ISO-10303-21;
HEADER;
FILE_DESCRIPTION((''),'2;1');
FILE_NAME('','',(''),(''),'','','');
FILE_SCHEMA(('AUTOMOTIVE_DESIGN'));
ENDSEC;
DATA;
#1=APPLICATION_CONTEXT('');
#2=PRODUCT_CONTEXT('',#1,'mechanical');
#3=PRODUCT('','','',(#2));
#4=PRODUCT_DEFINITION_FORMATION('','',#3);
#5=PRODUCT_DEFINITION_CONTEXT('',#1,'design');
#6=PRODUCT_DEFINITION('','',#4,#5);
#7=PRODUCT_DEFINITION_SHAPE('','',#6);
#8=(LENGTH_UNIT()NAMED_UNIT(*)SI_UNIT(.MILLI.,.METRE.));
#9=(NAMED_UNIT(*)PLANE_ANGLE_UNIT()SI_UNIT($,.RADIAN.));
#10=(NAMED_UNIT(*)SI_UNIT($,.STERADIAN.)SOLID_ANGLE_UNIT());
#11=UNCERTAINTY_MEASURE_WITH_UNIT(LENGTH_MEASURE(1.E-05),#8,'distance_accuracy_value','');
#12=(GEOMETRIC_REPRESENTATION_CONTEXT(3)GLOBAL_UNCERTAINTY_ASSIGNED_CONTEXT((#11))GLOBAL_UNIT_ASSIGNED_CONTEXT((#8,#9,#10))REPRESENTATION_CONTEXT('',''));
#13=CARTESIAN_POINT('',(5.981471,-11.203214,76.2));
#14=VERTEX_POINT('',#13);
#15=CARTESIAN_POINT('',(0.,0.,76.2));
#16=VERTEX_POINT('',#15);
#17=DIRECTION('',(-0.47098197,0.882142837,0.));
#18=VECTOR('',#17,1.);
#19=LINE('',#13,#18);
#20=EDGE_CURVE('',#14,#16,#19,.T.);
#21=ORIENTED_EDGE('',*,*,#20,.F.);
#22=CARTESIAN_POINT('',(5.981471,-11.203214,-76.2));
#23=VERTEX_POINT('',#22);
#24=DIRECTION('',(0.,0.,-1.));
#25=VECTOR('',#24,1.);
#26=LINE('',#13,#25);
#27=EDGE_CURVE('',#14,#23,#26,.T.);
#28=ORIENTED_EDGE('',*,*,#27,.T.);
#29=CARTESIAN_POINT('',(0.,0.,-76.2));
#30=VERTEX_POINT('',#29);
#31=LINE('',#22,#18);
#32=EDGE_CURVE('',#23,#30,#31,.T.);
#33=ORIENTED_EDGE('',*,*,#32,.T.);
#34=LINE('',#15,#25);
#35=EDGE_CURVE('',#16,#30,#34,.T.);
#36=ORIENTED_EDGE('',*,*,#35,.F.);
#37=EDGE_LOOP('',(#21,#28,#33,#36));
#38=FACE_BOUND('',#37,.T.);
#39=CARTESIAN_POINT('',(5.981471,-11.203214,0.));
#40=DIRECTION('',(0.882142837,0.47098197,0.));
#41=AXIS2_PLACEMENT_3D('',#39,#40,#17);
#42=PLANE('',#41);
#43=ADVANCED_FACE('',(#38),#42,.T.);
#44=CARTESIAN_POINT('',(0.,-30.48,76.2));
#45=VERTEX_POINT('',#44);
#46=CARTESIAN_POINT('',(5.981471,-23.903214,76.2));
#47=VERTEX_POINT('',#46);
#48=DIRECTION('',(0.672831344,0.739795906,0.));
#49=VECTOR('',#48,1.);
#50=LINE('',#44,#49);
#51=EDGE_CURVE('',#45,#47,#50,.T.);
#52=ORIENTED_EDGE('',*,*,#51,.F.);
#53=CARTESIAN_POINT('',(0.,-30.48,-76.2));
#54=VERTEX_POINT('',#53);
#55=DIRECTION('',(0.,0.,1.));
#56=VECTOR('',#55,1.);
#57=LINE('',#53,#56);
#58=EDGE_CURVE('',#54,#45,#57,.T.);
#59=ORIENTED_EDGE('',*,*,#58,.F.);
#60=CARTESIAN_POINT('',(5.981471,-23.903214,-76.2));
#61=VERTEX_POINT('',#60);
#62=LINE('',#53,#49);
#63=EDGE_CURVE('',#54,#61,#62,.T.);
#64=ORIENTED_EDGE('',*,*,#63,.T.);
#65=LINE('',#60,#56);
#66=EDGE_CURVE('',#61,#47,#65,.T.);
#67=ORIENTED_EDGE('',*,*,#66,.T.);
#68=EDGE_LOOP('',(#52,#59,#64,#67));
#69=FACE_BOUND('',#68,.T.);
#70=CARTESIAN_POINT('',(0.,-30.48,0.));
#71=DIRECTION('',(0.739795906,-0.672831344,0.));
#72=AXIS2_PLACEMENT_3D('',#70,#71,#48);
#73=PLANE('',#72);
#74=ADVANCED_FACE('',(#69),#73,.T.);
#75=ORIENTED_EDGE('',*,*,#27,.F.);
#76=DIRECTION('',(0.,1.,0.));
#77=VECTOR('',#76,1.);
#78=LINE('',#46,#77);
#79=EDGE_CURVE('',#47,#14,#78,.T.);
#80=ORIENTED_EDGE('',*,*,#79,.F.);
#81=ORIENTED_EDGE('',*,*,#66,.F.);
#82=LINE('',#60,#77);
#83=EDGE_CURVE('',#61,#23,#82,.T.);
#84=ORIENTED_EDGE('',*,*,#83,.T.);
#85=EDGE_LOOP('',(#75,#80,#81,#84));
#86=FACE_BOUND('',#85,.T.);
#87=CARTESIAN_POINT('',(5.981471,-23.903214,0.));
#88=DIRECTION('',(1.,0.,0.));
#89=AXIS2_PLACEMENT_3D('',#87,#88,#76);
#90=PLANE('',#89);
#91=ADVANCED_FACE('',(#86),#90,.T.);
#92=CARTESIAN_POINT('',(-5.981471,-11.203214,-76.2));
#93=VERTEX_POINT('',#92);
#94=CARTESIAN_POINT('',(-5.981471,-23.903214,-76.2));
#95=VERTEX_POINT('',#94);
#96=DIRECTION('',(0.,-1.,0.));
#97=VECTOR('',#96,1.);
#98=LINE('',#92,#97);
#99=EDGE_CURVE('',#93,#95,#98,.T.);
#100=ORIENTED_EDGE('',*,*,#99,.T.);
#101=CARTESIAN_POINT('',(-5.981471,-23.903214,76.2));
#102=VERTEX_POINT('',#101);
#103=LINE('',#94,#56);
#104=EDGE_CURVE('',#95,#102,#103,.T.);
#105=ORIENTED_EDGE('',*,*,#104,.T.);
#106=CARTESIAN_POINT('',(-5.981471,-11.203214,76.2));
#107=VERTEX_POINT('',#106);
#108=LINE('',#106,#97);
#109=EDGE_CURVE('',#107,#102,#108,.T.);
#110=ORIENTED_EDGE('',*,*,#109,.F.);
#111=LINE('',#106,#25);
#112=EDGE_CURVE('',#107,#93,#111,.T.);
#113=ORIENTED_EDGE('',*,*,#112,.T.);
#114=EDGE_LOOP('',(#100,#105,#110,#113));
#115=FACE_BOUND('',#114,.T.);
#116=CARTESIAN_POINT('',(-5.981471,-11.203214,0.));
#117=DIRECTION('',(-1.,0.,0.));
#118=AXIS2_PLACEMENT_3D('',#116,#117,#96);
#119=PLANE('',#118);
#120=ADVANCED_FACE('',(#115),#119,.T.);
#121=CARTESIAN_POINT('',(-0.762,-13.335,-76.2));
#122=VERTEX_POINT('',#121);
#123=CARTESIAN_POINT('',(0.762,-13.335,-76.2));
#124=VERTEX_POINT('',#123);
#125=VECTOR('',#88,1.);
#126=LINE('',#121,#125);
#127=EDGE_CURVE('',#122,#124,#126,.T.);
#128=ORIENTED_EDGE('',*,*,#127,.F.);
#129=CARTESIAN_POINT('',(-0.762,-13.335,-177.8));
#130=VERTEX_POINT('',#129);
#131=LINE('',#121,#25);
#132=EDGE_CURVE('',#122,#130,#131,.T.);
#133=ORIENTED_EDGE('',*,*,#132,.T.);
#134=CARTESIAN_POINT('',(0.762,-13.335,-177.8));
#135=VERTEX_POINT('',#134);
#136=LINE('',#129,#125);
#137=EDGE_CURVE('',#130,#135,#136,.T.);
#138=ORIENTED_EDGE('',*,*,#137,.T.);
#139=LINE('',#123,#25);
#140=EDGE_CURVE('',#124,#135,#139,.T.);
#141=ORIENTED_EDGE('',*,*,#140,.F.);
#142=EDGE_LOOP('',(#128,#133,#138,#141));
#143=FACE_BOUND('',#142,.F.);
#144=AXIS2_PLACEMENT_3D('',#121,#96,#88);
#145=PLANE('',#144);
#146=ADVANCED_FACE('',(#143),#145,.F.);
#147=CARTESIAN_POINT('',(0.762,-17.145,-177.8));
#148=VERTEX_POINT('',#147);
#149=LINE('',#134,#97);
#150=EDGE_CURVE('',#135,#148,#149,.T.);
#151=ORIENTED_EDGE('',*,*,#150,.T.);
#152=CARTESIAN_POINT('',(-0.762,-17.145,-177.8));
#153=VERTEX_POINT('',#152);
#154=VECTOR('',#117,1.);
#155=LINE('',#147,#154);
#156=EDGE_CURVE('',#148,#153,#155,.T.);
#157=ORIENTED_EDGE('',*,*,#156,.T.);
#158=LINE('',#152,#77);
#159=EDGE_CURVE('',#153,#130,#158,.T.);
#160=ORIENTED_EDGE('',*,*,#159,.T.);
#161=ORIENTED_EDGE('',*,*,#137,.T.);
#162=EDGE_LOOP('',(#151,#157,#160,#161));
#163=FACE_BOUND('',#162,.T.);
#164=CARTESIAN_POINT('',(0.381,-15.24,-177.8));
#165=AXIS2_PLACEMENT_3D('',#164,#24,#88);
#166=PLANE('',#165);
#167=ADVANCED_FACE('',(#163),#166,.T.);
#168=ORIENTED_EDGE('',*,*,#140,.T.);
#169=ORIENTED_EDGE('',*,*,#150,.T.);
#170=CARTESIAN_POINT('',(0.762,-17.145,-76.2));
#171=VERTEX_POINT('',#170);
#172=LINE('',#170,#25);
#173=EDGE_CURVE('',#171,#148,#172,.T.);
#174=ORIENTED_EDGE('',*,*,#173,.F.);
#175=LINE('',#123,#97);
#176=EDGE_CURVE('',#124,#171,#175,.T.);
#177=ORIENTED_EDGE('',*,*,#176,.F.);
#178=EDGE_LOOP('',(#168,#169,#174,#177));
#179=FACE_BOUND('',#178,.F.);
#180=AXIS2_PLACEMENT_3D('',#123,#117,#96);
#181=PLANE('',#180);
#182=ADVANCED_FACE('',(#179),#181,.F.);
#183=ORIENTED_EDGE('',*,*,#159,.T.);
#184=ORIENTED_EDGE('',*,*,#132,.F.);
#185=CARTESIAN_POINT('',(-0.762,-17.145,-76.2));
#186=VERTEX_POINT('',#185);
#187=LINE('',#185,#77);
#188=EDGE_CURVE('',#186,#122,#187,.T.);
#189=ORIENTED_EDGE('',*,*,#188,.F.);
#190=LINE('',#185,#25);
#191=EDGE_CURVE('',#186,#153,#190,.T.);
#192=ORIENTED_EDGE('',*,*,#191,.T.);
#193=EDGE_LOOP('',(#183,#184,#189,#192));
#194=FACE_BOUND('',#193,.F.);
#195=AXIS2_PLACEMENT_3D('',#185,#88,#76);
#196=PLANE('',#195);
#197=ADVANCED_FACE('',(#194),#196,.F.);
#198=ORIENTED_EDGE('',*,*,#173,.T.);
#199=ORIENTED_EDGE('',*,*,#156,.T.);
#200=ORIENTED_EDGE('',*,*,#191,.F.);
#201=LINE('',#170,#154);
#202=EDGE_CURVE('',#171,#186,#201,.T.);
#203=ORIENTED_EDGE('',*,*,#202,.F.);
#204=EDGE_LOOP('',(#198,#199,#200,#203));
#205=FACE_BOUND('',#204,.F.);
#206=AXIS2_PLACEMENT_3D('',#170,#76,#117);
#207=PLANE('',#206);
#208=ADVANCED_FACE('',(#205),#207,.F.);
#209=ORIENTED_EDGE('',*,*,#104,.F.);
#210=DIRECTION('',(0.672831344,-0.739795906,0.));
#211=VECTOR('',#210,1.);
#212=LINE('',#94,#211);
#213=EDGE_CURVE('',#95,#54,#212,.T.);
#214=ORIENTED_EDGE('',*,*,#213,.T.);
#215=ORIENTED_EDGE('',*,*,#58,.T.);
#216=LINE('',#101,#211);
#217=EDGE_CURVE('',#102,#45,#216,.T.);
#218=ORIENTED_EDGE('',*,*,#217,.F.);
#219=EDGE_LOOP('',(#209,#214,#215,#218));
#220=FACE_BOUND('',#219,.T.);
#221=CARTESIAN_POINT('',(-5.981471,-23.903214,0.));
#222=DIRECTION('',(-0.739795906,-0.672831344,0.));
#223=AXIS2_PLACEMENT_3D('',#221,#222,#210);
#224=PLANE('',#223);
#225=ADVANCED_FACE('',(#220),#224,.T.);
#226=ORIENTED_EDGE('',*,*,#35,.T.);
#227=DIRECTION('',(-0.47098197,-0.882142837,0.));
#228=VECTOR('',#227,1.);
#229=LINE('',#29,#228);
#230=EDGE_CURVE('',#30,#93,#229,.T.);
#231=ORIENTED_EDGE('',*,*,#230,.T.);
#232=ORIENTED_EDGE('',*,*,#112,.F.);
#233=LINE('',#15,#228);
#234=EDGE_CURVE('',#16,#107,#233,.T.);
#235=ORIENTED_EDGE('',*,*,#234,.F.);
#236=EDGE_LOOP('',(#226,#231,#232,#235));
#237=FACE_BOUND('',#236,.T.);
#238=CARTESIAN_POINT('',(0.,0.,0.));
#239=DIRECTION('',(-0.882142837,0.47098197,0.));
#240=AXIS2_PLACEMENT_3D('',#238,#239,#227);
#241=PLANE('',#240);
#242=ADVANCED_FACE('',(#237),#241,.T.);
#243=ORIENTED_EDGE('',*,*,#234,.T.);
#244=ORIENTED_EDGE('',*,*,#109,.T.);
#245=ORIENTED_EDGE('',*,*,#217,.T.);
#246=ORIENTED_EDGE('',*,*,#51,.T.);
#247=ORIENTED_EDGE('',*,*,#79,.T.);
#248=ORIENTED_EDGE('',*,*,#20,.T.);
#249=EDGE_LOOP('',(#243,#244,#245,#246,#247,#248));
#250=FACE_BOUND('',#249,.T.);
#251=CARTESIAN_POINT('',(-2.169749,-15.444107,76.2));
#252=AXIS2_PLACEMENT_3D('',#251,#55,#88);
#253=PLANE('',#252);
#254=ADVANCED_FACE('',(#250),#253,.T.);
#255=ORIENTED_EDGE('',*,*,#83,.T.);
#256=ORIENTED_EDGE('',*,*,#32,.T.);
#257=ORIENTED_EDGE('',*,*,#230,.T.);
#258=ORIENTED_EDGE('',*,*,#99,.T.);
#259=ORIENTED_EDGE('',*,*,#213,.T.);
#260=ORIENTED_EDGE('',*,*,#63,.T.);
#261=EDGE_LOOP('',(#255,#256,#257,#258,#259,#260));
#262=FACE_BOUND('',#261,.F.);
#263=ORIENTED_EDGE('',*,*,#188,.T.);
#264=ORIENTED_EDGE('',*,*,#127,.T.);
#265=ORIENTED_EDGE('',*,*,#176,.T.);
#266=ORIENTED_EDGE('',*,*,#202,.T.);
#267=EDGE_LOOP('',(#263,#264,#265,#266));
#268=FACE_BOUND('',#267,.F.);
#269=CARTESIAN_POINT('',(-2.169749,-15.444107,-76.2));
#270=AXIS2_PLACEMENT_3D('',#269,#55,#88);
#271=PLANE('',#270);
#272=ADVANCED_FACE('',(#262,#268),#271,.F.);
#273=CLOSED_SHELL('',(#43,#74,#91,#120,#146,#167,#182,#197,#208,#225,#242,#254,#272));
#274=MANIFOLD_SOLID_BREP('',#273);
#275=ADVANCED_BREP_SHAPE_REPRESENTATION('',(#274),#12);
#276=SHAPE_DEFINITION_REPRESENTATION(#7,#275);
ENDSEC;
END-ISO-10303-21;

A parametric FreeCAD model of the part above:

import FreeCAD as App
import Part
import Sketcher

V = App.Vector
Q = App.Units.Quantity


def add_polygon(sketch, points):
    """Adds a closed chain of lines whose ends are joined by coincident constraints."""
    first, n = sketch.GeometryCount, len(points)
    for a, b in zip(points, points[1:] + points[:1]):
        sketch.addGeometry(Part.LineSegment(App.Vector(*a, 0), App.Vector(*b, 0)), False)
    for i in range(n):
        sketch.addConstraint(Sketcher.Constraint("Coincident", first + i, 2, first + (i + 1) % n, 1))

doc = App.newDocument("Part")
body = doc.addObject("PartDesign::Body", "Body")

sketch1 = doc.addObject("Sketcher::SketchObject", "Sketch")
body.addObject(sketch1)
sketch1.AttachmentSupport = (doc.XY_Plane, [""])
sketch1.MapMode = "FlatFace"
add_polygon(sketch1, [(-5.981471, -11.203214), (-5.981471, -23.903214), (0, -30.48), (5.981471, -23.903214), (5.981471, -11.203214), (0, 0)])
sketch1.addConstraint(Sketcher.Constraint("Vertical", 0))
sketch1.addConstraint(Sketcher.Constraint("Vertical", 3))
sketch1.addConstraint(Sketcher.Constraint("Coincident", 4, 2, -1, 1))
sketch1.addConstraint(Sketcher.Constraint("Symmetric", 0, 2, 2, 2, -2))
sketch1.addConstraint(Sketcher.Constraint("PointOnObject", 1, 2, -2))
sketch1.addConstraint(Sketcher.Constraint("Horizontal", 3, 2, 5, 2))
sketch1.addConstraint(Sketcher.Constraint("DistanceY", 0, 2, 0, 1, Q("0.5 in")))
sketch1.addConstraint(Sketcher.Constraint("Distance", 4, Q("0.5 in")))
sketch1.addConstraint(Sketcher.Constraint("DistanceY", 1, 2, -1, 1, Q("1.2 in")))
sketch1.addConstraint(Sketcher.Constraint("Distance", 1, Q("0.35 in")))
pad1 = doc.addObject("PartDesign::Pad", "Pad")
body.addObject(pad1)
pad1.Profile = sketch1
pad1.Length = Q("6 in")
pad1.Midplane = True

sketch2 = doc.addObject("Sketcher::SketchObject", "Sketch001")
body.addObject(sketch2)
sketch2.AttachmentSupport = (doc.XY_Plane, [""])
sketch2.MapMode = "FlatFace"
sketch2.AttachmentOffset = App.Placement(V(0, 0, -3 * 25.4), App.Rotation())
add_polygon(sketch2, [(0.762, -17.145), (-0.762, -17.145), (-0.762, -13.335), (0.762, -13.335)])
sketch2.addConstraint(Sketcher.Constraint("Horizontal", 0))
sketch2.addConstraint(Sketcher.Constraint("Vertical", 1))
sketch2.addConstraint(Sketcher.Constraint("Horizontal", 2))
sketch2.addConstraint(Sketcher.Constraint("Vertical", 3))
sketch2.addConstraint(Sketcher.Constraint("DistanceX", 0, 2, 0, 1, Q("0.06 in")))
sketch2.addConstraint(Sketcher.Constraint("DistanceY", 1, 1, 1, 2, Q("0.15 in")))
sketch2.addConstraint(Sketcher.Constraint("DistanceX", 0, 2, -1, 1, Q("0.03 in")))
sketch2.addConstraint(Sketcher.Constraint("DistanceY", 0, 2, -1, 1, Q("0.675 in")))
pad2 = doc.addObject("PartDesign::Pad", "Pad001")
body.addObject(pad2)
pad2.Profile = sketch2
pad2.Length = Q("4 in")
pad2.Reversed = True

doc.recompute()
